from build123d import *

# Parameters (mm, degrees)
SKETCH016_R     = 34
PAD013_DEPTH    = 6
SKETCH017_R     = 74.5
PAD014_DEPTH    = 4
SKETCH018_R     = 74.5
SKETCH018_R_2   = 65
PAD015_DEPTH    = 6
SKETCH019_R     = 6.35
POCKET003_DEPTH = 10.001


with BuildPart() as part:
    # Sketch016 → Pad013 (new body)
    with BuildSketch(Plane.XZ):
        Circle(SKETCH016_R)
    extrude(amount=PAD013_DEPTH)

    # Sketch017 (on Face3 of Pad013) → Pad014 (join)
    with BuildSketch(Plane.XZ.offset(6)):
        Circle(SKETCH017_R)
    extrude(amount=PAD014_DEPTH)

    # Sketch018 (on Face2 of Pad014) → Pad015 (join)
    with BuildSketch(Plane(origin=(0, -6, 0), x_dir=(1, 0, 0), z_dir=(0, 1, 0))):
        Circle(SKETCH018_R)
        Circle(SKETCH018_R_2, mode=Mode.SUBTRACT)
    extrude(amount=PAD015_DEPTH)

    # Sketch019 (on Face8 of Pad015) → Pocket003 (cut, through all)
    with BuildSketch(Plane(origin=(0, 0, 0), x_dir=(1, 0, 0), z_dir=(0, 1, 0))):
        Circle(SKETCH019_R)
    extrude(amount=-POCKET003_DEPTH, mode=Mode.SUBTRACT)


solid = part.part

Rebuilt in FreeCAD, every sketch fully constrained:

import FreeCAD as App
import Part
import Sketcher
from FreeCAD import Vector
Q = App.Units.Quantity

doc = App.newDocument("Part")
body = doc.addObject("PartDesign::Body", "Body")

sketch1 = body.newObject("Sketcher::SketchObject", "Sketch")
sketch1.AttachmentSupport = (doc.getObject("XZ_Plane"), [""])
sketch1.MapMode = "FlatFace"
sketch1.addGeometry(Part.Circle(Vector(0, 0, 0), Vector(0, 0, 1), 34), False)
sketch1.addConstraint([
    Sketcher.Constraint("Coincident", 0, 3, -1, 1),
    Sketcher.Constraint("Diameter", 0, Q("68 mm")),
])
pad1 = body.newObject("PartDesign::Pad", "Pad")
pad1.Profile = sketch1
pad1.Length = 6

sketch2 = body.newObject("Sketcher::SketchObject", "Sketch001")
sketch2.AttachmentSupport = (doc.getObject("XZ_Plane"), [""])
sketch2.MapMode = "FlatFace"
sketch2.AttachmentOffset = App.Placement(Vector(0, 0, 6), App.Rotation())
sketch2.addGeometry(Part.Circle(Vector(0, 0, 0), Vector(0, 0, 1), 74), False)
sketch2.addConstraint([
    Sketcher.Constraint("Coincident", 0, 3, -1, 1),
    Sketcher.Constraint("Diameter", 0, Q("149 mm")),
])
pad2 = body.newObject("PartDesign::Pad", "Pad001")
pad2.Profile = sketch2
pad2.Length = 4

sketch3 = body.newObject("Sketcher::SketchObject", "Sketch002")
sketch3.AttachmentSupport = (doc.getObject("XZ_Plane"), [""])
sketch3.MapMode = "FlatFace"
sketch3.AttachmentOffset = App.Placement(Vector(0, 0, 6), App.Rotation())
sketch3.addGeometry([
    Part.Circle(Vector(0, 0, 0), Vector(0, 0, 1), 74),
    Part.Circle(Vector(0, 0, 0), Vector(0, 0, 1), 65),
], False)
sketch3.addConstraint([
    Sketcher.Constraint("Coincident", 0, 3, -1, 1),
    Sketcher.Constraint("Coincident", 1, 3, -1, 1),
    Sketcher.Constraint("Diameter", 0, Q("149 mm")),
    Sketcher.Constraint("Diameter", 1, Q("130 mm")),
])
pad3 = body.newObject("PartDesign::Pad", "Pad002")
pad3.Profile = sketch3
pad3.Length = 6
pad3.Reversed = True

sketch4 = body.newObject("Sketcher::SketchObject", "Sketch003")
sketch4.AttachmentSupport = (doc.getObject("XZ_Plane"), [""])
sketch4.MapMode = "FlatFace"
sketch4.addGeometry(Part.Circle(Vector(0, 0, 0), Vector(0, 0, 1), 6), False)
sketch4.addConstraint([
    Sketcher.Constraint("Coincident", 0, 3, -1, 1),
    Sketcher.Constraint("Diameter", 0, Q("12.7 mm")),
])
pocket1 = body.newObject("PartDesign::Pocket", "Pocket")
pocket1.Profile = sketch4
pocket1.Type = "ThroughAll"
pocket1.Reversed = True

doc.recompute()
